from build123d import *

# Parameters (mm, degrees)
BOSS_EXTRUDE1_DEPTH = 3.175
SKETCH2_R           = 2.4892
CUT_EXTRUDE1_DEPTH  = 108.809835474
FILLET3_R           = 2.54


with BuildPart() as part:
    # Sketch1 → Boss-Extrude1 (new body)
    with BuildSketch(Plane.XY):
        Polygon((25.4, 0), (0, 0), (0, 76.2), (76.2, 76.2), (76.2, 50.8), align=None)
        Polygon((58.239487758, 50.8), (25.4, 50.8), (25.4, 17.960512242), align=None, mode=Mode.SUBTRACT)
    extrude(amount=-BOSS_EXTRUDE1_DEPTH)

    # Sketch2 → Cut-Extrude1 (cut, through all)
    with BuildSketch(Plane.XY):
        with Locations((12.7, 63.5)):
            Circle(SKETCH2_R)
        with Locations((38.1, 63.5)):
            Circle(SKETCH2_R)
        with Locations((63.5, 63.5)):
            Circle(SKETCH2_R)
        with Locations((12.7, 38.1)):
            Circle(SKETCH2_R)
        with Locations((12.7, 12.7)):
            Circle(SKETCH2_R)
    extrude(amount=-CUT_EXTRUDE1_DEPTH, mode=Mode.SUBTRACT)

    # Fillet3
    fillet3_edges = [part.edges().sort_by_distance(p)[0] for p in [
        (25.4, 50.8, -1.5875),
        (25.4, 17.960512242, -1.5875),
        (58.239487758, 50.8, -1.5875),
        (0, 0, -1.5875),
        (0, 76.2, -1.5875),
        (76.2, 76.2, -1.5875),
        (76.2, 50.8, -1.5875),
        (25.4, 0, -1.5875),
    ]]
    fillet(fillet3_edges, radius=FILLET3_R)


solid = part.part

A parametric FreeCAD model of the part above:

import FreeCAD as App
import Part
import Sketcher
Q = App.Units.Quantity


def edges_at(feature, points):
    """Names of the edges that pass closest to the given points."""
    edges = feature.Shape.Edges
    near = lambda p: min(range(len(edges)), key=lambda i: edges[i].distToShape(Part.Vertex(*p))[0])
    return sorted({f"Edge{near(p) + 1}" for p in points})


def add_polygon(sketch, points):
    """Adds a closed chain of lines whose ends are joined by coincident constraints."""
    first, n = sketch.GeometryCount, len(points)
    for a, b in zip(points, points[1:] + points[:1]):
        sketch.addGeometry(Part.LineSegment(App.Vector(*a, 0), App.Vector(*b, 0)), False)
    for i in range(n):
        sketch.addConstraint(Sketcher.Constraint("Coincident", first + i, 2, first + (i + 1) % n, 1))

doc = App.newDocument("Part")
params = doc.addObject("Spreadsheet::Sheet", "Params")
for row, (alias, value) in enumerate([
    ("sketch1_width", "1 in"),
    ("sketch1_width2", "3 in"),
    ("pad1_length", "0.125 in"),
    ("sketch2_diameter", "0.196 in"),
    ("fillet_radius", "0.1 in"),
], start=1):
    params.set(f"A{row}", alias)
    params.set(f"B{row}", "=" + value)
    params.setAlias(f"B{row}", alias)

body = doc.addObject("PartDesign::Body", "Body")

# Sketch on XY plane
sketch1 = body.newObject("Sketcher::SketchObject", "Sketch")
sketch1.AttachmentSupport = (doc.getObject("XY_Plane"), [""])
sketch1.MapMode = "FlatFace"
add_polygon(sketch1, [(0, 0), (25, 0), (76, 51), (76, 76), (0, 76)])  # lines 0-4
add_polygon(sketch1, [(58, 51), (25, 18), (25, 51)])  # lines 5-7
sketch1.addConstraint([
    Sketcher.Constraint("Horizontal", 0),
    Sketcher.Constraint("Vertical", 2),
    Sketcher.Constraint("Horizontal", 3),
    Sketcher.Constraint("Vertical", 4),
    Sketcher.Constraint("Vertical", 6),
    Sketcher.Constraint("Horizontal", 7),
    Sketcher.Constraint("Coincident", 4, 2, -1, 1),
    Sketcher.Constraint("Parallel", 1, 5),
    Sketcher.Constraint("Horizontal", 1, 2, 6, 2),
    Sketcher.Constraint("Vertical", 0, 2, 5, 2),
    Sketcher.Constraint("Equal", 0, 2),
    Sketcher.Constraint("Equal", 3, 4),
    Sketcher.Constraint("DistanceX", 0, 1, 0, 2, Q("1 in")),
    Sketcher.Constraint("DistanceX", 3, 2, 3, 1, Q("3 in")),
    Sketcher.Constraint("Distance", 5, 46.442049),
])
sketch1.setExpression("Constraints[20]", "Params.sketch1_width")
sketch1.setExpression("Constraints[21]", "Params.sketch1_width2")
pad1 = body.newObject("PartDesign::Pad", "Pad")
pad1.Profile = sketch1
pad1.setExpression("Length", "Params.pad1_length")
pad1.Reversed = True

# Sketch on XY plane
sketch2 = body.newObject("Sketcher::SketchObject", "Sketch001")
sketch2.AttachmentSupport = (doc.getObject("XY_Plane"), [""])
sketch2.MapMode = "FlatFace"
sketch2.addGeometry([
    Part.Circle(App.Vector(12.7, 63.5, 0), App.Vector(0, 0, 1), 2.5),  # 0
    Part.Circle(App.Vector(38.1, 63.5, 0), App.Vector(0, 0, 1), 2.5),  # 1
    Part.Circle(App.Vector(63.5, 63.5, 0), App.Vector(0, 0, 1), 2.5),  # 2
    Part.Circle(App.Vector(12.7, 38.1, 0), App.Vector(0, 0, 1), 2.5),  # 3
    Part.Circle(App.Vector(12.7, 12.7, 0), App.Vector(0, 0, 1), 2.5),  # 4
], False)
sketch2.addConstraint([
    Sketcher.Constraint("Equal", 0, 1),
    Sketcher.Constraint("Equal", 1, 2),
    Sketcher.Constraint("Equal", 2, 3),
    Sketcher.Constraint("Equal", 3, 4),
    Sketcher.Constraint("Horizontal", 0, 3, 1, 3),
    Sketcher.Constraint("Horizontal", 1, 3, 2, 3),
    Sketcher.Constraint("Vertical", 0, 3, 3, 3),
    Sketcher.Constraint("Vertical", 3, 3, 4, 3),
    Sketcher.Constraint("Diameter", 0, Q("0.196 in")),
    Sketcher.Constraint("DistanceX", 0, 3, 1, 3, Q("1 in")),
    Sketcher.Constraint("DistanceX", 1, 3, 2, 3, Q("1 in")),
    Sketcher.Constraint("DistanceY", 3, 3, 0, 3, Q("1 in")),
    Sketcher.Constraint("DistanceY", 4, 3, 3, 3, Q("1 in")),
    Sketcher.Constraint("DistanceX", -1, 1, 0, 3, Q("0.5 in")),
    Sketcher.Constraint("DistanceY", -1, 1, 0, 3, Q("2.5 in")),
])
sketch2.setExpression("Constraints[8]", "Params.sketch2_diameter")
pocket1 = body.newObject("PartDesign::Pocket", "Pocket")
pocket1.Profile = sketch2
pocket1.Type = "ThroughAll"
doc.recompute()

fillet = body.newObject("PartDesign::Fillet", "Fillet")
fillet.Base = (pocket1, edges_at(pocket1, [
    (25.4, 50.8, -1.587),
    (25.4, 17.961, -1.587),
    (58.239, 50.8, -1.587),
    (0, 0, -1.587),
    (0, 76.2, -1.587),
    (76.2, 76.2, -1.587),
    (76.2, 50.8, -1.587),
    (25.4, 0, -1.587),
]))
fillet.setExpression("Radius", "Params.fillet_radius")

doc.recompute()
